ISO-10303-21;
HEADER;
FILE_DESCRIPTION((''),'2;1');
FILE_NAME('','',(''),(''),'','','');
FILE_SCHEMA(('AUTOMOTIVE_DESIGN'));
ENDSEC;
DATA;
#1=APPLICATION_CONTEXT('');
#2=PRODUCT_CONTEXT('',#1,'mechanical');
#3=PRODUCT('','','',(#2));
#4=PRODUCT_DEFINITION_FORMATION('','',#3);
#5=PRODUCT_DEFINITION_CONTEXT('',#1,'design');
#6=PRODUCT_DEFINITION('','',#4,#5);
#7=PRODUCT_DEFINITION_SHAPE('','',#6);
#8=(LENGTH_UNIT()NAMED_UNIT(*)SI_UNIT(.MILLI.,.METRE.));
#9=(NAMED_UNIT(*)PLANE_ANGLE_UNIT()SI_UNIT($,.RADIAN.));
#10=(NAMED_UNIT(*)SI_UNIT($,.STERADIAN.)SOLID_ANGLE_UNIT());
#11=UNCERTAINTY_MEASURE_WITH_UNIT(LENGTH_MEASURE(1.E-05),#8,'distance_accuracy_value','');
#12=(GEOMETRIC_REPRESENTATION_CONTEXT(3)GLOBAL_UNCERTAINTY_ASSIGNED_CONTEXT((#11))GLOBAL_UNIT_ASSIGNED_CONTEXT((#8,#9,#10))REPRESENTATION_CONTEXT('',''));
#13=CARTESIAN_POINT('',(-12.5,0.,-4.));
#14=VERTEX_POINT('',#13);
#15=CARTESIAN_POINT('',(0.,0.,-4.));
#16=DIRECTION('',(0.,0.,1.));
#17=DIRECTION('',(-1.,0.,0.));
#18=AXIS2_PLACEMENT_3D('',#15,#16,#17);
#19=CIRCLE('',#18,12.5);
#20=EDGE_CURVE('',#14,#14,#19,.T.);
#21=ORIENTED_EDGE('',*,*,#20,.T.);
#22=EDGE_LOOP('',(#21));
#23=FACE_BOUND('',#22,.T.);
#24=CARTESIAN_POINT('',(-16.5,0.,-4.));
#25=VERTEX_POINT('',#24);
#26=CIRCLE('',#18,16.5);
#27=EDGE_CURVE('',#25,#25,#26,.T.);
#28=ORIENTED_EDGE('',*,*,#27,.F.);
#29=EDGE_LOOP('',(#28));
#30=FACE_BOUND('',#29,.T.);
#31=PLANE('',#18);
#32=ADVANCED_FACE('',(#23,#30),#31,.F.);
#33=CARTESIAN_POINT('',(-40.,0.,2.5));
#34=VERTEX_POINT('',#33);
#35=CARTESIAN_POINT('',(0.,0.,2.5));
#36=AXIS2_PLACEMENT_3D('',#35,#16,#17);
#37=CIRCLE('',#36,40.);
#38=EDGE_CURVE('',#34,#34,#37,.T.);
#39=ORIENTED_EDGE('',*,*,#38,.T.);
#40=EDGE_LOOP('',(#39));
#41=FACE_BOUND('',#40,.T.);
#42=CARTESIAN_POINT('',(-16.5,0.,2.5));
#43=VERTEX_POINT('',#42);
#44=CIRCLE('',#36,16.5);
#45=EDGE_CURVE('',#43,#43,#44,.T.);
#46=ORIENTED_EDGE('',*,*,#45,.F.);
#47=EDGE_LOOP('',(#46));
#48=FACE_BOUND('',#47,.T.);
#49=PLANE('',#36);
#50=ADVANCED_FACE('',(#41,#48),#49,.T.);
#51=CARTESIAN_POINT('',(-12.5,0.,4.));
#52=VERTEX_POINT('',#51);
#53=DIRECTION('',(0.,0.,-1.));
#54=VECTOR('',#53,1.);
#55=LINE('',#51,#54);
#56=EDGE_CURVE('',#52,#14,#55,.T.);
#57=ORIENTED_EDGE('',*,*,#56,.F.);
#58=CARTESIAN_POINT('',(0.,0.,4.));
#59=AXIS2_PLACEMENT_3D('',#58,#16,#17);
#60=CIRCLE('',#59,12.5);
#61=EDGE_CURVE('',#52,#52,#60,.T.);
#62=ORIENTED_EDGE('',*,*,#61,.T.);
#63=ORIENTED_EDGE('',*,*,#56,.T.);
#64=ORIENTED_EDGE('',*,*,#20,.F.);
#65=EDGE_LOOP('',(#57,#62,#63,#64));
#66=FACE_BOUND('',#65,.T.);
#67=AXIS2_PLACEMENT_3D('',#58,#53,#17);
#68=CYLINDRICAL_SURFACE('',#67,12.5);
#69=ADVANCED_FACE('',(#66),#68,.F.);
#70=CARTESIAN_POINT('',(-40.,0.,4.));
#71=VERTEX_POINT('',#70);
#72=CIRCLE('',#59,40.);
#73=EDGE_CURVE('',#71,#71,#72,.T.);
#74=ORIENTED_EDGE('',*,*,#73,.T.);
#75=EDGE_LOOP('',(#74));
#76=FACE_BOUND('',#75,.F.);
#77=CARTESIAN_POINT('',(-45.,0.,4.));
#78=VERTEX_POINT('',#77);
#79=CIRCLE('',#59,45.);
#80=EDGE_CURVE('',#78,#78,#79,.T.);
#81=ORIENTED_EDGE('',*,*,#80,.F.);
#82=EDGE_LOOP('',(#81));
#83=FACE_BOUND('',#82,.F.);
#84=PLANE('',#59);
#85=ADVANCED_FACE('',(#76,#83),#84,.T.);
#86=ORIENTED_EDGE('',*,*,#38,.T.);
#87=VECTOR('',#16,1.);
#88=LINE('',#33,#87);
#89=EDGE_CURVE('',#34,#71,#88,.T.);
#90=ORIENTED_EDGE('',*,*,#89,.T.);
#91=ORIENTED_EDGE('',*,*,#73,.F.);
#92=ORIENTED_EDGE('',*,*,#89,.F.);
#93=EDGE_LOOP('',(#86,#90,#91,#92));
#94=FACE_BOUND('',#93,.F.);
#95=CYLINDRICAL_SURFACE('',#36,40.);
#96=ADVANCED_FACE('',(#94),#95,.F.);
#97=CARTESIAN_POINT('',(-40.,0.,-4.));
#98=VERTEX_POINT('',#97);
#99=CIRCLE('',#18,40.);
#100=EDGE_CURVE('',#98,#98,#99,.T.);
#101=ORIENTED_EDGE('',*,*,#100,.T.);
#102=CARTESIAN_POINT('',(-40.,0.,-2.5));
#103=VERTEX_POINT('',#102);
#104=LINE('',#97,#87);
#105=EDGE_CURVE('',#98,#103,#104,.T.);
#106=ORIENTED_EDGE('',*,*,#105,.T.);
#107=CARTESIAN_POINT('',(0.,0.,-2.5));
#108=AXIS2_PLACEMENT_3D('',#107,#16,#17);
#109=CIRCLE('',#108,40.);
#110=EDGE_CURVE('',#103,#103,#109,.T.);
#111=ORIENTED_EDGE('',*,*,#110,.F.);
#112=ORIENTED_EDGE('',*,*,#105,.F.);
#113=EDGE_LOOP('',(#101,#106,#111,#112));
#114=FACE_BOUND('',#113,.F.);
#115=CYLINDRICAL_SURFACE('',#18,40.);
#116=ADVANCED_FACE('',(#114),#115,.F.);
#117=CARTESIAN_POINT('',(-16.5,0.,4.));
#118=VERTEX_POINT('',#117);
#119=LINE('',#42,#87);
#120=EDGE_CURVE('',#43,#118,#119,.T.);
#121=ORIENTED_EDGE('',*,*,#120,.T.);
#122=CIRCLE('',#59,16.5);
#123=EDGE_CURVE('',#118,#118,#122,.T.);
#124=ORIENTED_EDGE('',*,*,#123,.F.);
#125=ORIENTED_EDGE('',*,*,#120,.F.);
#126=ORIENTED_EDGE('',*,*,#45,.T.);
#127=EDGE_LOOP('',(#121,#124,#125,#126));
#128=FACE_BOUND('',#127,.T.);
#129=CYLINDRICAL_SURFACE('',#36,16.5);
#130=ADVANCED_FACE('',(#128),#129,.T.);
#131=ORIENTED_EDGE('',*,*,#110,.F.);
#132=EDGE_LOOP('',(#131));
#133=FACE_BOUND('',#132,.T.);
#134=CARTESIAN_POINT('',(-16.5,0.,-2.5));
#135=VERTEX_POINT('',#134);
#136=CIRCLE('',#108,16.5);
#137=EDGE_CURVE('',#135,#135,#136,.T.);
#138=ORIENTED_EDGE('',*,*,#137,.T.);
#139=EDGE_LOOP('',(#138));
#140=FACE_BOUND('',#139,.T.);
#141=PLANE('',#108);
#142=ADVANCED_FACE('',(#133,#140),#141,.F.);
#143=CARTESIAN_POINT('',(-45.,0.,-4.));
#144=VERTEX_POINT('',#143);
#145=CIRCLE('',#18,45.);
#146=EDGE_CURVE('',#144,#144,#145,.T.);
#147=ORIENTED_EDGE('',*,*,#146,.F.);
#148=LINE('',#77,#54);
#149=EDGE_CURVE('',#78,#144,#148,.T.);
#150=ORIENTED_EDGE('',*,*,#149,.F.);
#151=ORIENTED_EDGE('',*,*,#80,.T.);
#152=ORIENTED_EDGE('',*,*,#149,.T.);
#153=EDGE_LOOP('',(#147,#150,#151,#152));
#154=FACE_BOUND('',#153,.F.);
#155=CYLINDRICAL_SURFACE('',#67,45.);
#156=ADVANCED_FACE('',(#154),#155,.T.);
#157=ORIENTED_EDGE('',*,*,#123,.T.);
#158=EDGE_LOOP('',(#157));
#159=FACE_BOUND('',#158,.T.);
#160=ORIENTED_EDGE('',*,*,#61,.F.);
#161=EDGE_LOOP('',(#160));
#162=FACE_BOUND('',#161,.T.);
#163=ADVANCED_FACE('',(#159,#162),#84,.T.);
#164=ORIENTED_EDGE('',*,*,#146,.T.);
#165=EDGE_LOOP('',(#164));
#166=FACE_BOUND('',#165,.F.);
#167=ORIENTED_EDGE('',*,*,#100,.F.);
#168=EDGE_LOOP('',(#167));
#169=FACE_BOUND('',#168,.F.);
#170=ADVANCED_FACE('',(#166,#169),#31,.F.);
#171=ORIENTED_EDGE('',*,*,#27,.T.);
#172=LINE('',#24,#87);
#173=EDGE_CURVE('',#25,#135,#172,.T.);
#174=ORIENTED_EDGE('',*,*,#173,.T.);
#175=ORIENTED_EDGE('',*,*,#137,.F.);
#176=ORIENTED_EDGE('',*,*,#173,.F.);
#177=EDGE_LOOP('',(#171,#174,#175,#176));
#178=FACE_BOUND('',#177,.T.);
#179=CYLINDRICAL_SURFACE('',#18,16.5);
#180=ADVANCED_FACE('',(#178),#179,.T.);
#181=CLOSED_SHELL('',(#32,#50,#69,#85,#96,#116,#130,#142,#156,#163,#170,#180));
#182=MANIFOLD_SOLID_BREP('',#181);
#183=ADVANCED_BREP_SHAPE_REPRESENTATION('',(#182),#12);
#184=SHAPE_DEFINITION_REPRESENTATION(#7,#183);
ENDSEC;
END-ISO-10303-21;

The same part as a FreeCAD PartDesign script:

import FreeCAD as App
import Part
import Sketcher

V = App.Vector
Q = App.Units.Quantity


def add_polygon(sketch, points):
    """Adds a closed chain of lines whose ends are joined by coincident constraints."""
    first, n = sketch.GeometryCount, len(points)
    for a, b in zip(points, points[1:] + points[:1]):
        sketch.addGeometry(Part.LineSegment(App.Vector(*a, 0), App.Vector(*b, 0)), False)
    for i in range(n):
        sketch.addConstraint(Sketcher.Constraint("Coincident", first + i, 2, first + (i + 1) % n, 1))

doc = App.newDocument("Part")
params = doc.addObject("Spreadsheet::Sheet", "Params")
for row, (alias, value) in enumerate([
    ("sketch1_width", "4 mm"),
    ("sketch1_width2", "5 mm"),
    ("sketch1_height", "8 mm"),
    ("sketch1_height2", "1.5 mm"),
    ("sketch1_width3", "23.5 mm"),
    ("revolution_angle", "360 deg"),
], start=1):
    params.set(f"A{row}", alias)
    params.set(f"B{row}", "=" + value)
    params.setAlias(f"B{row}", alias)

body = doc.addObject("PartDesign::Body", "Body")

# Sketch on XZ plane
sketch1 = doc.addObject("Sketcher::SketchObject", "Sketch")
body.addObject(sketch1)
sketch1.AttachmentSupport = (doc.XZ_Plane, [""])
sketch1.MapMode = "FlatFace"
add_polygon(sketch1, [(-16.5, 2.5), (-16.5, 4), (-12.5, 4), (-12.5, -4), (-16.5, -4), (-16.5, -2.5), (-40, -2.5), (-40, -4), (-45, -4), (-45, 4), (-40, 4), (-40, 2.5)])  # lines 0-11
sketch1.addConstraint([
    Sketcher.Constraint("Vertical", 0),
    Sketcher.Constraint("Horizontal", 1),
    Sketcher.Constraint("Vertical", 2),
    Sketcher.Constraint("Horizontal", 3),
    Sketcher.Constraint("Vertical", 4),
    Sketcher.Constraint("Horizontal", 5),
    Sketcher.Constraint("Vertical", 6),
    Sketcher.Constraint("Horizontal", 7),
    Sketcher.Constraint("Vertical", 8),
    Sketcher.Constraint("Horizontal", 9),
    Sketcher.Constraint("Vertical", 10),
    Sketcher.Constraint("Horizontal", 11),
    Sketcher.Constraint("Symmetric", 0, 2, 3, 2, -1),
    Sketcher.Constraint("Symmetric", 6, 2, 9, 2, -1),
    Sketcher.Constraint("Horizontal", 3, 2, 6, 2),
    Sketcher.Constraint("Equal", 0, 4),
    Sketcher.Constraint("DistanceX", 1, 1, 1, 2, Q("4 mm")),
    Sketcher.Constraint("DistanceX", 7, 2, 7, 1, Q("5 mm")),
    Sketcher.Constraint("DistanceY", 2, 2, 2, 1, Q("8 mm")),
    Sketcher.Constraint("DistanceY", 0, 1, 0, 2, Q("1.5 mm")),
    Sketcher.Constraint("DistanceX", 5, 2, 5, 1, Q("23.5 mm")),
    Sketcher.Constraint("DistanceX", 5, 2, -1, 1, Q("40 mm")),
])
sketch1.setExpression("Constraints[28]", "Params.sketch1_width")
sketch1.setExpression("Constraints[29]", "Params.sketch1_width2")
sketch1.setExpression("Constraints[30]", "Params.sketch1_height")
sketch1.setExpression("Constraints[31]", "Params.sketch1_height2")
sketch1.setExpression("Constraints[32]", "Params.sketch1_width3")
revolution = doc.addObject("PartDesign::Revolution", "Revolution")
body.addObject(revolution)
revolution.Profile = sketch1
revolution.ReferenceAxis = (sketch1, ["V_Axis"])
revolution.setExpression("Angle", "Params.revolution_angle")

doc.recompute()
